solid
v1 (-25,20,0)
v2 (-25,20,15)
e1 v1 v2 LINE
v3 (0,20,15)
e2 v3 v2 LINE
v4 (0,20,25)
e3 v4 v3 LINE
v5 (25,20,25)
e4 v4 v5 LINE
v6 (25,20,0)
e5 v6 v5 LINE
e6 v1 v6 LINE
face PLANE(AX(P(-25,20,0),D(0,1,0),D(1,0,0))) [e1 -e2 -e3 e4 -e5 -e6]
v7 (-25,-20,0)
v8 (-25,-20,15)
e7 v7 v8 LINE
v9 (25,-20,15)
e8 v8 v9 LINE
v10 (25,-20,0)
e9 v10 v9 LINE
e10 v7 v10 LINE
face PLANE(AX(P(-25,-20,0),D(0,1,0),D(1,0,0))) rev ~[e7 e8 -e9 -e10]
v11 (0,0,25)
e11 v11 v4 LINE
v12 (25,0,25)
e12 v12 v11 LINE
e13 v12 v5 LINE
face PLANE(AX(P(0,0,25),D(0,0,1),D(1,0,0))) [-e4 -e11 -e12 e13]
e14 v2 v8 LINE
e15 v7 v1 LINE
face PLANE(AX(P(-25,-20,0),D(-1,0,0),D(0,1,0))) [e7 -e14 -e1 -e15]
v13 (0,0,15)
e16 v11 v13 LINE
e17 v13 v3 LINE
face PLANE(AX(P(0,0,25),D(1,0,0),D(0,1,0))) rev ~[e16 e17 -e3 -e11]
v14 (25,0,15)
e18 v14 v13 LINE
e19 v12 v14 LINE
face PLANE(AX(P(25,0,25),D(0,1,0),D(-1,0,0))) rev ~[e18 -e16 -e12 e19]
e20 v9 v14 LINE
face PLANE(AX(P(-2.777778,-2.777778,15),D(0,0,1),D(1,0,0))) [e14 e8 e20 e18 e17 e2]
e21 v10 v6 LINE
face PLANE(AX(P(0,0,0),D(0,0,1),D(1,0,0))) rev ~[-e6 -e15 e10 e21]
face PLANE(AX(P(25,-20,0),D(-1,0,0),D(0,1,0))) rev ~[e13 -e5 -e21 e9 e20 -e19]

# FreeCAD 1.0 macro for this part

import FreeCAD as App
import Part
import Sketcher


def add_polygon(sketch, points):
    """Adds a closed chain of lines whose ends are joined by coincident constraints."""
    first, n = sketch.GeometryCount, len(points)
    for a, b in zip(points, points[1:] + points[:1]):
        sketch.addGeometry(Part.LineSegment(App.Vector(*a, 0), App.Vector(*b, 0)), False)
    for i in range(n):
        sketch.addConstraint(Sketcher.Constraint("Coincident", first + i, 2, first + (i + 1) % n, 1))

doc = App.newDocument("Part")
body = doc.addObject("PartDesign::Body", "Body")

# Sketch on XY plane
sketch1 = doc.addObject("Sketcher::SketchObject", "Sketch")
body.addObject(sketch1)
sketch1.AttachmentSupport = (doc.XY_Plane, [""])
sketch1.MapMode = "FlatFace"
add_polygon(sketch1, [(-25, 20), (-25, -20), (25, -20), (25, 20)])  # lines 0-3
sketch1.addConstraint([
    Sketcher.Constraint("Vertical", 0),
    Sketcher.Constraint("Horizontal", 1),
    Sketcher.Constraint("Vertical", 2),
    Sketcher.Constraint("Horizontal", 3),
    Sketcher.Constraint("Symmetric", 0, 2, 2, 2, -1, 1),
    Sketcher.Constraint("DistanceX", 1, 1, 1, 2, 50.0),
    Sketcher.Constraint("DistanceY", 0, 2, 0, 1, 40.0),
])
pad1 = doc.addObject("PartDesign::Pad", "Pad")
body.addObject(pad1)
pad1.Profile = sketch1
pad1.Length = 25

# Sketch on XY plane
sketch2 = doc.addObject("Sketcher::SketchObject", "Sketch001")
body.addObject(sketch2)
sketch2.AttachmentSupport = (doc.XY_Plane, [""])
sketch2.MapMode = "FlatFace"
sketch2.AttachmentOffset = App.Placement(App.Vector(0, 0, 25), App.Rotation())
add_polygon(sketch2, [(25, 0), (0, 0), (0, 20), (-25, 20), (-25, -20), (25, -20)])  # lines 0-5
sketch2.addConstraint([
    Sketcher.Constraint("Horizontal", 0),
    Sketcher.Constraint("Vertical", 1),
    Sketcher.Constraint("Horizontal", 2),
    Sketcher.Constraint("Vertical", 3),
    Sketcher.Constraint("Horizontal", 4),
    Sketcher.Constraint("Vertical", 5),
    Sketcher.Constraint("Coincident", 0, 2, -1, 1),
    Sketcher.Constraint("Symmetric", 2, 2, 4, 2, -1, 1),
    Sketcher.Constraint("DistanceX", 0, 2, 0, 1, 25.0),
    Sketcher.Constraint("DistanceY", 1, 1, 1, 2, 20.0),
])
pocket1 = doc.addObject("PartDesign::Pocket", "Pocket")
body.addObject(pocket1)
pocket1.Profile = sketch2
pocket1.Length = 10

doc.recompute()
